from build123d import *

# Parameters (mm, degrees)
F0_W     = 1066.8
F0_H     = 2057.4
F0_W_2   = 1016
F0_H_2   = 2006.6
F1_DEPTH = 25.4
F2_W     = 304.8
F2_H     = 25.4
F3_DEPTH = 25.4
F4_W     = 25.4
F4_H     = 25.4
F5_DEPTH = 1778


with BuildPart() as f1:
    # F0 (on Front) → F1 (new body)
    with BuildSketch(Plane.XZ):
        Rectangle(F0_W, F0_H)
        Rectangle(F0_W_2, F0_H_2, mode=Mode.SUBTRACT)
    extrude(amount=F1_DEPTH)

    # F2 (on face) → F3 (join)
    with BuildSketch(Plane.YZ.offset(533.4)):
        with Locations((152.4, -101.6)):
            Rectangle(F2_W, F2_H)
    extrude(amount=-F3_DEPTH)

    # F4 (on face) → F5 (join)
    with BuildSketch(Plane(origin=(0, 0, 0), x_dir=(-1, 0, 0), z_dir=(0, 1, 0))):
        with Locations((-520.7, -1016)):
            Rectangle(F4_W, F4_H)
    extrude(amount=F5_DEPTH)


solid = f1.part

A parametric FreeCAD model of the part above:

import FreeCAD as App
import Part
import Sketcher
from FreeCAD import Vector
Q = App.Units.Quantity


def add_polygon(sketch, points):
    """Adds a closed chain of lines whose ends are joined by coincident constraints."""
    first, n = sketch.GeometryCount, len(points)
    for a, b in zip(points, points[1:] + points[:1]):
        sketch.addGeometry(Part.LineSegment(App.Vector(*a, 0), App.Vector(*b, 0)), False)
    for i in range(n):
        sketch.addConstraint(Sketcher.Constraint("Coincident", first + i, 2, first + (i + 1) % n, 1))

doc = App.newDocument("Part")
params = doc.addObject("Spreadsheet::Sheet", "Params")
for row, (alias, value) in enumerate([
    ("sketch1_width", "42 in"),
    ("sketch1_width2", "40 in"),
    ("sketch1_height", "81 in"),
    ("sketch1_height2", "79 in"),
    ("pad1_length", "1 in"),
    ("sketch2_width", "12 in"),
    ("sketch2_height", "1 in"),
    ("pad2_length", "1 in"),
    ("sketch3_width", "1 in"),
    ("pad3_length", "70 in"),
], start=1):
    params.set(f"A{row}", alias)
    params.set(f"B{row}", "=" + value)
    params.setAlias(f"B{row}", alias)

body = doc.addObject("PartDesign::Body", "Body")

# Sketch on XZ plane
sketch1 = body.newObject("Sketcher::SketchObject", "Sketch")
sketch1.AttachmentSupport = (doc.getObject("XZ_Plane"), [""])
sketch1.MapMode = "FlatFace"
add_polygon(sketch1, [(-533, 1029), (-533, -1029), (533, -1029), (533, 1029)])  # lines 0-3
add_polygon(sketch1, [(508, -1003), (-508, -1003), (-508, 1003), (508, 1003)])  # lines 4-7
sketch1.addConstraint(Sketcher.Constraint("Vertical", 0))
sketch1.addConstraint(Sketcher.Constraint("Horizontal", 1))
sketch1.addConstraint(Sketcher.Constraint("Vertical", 2))
sketch1.addConstraint(Sketcher.Constraint("Horizontal", 3))
sketch1.addConstraint(Sketcher.Constraint("Horizontal", 4))
sketch1.addConstraint(Sketcher.Constraint("Vertical", 5))
sketch1.addConstraint(Sketcher.Constraint("Horizontal", 6))
sketch1.addConstraint(Sketcher.Constraint("Vertical", 7))
sketch1.addConstraint(Sketcher.Constraint("Symmetric", 0, 2, 2, 2, -1, 1))
sketch1.addConstraint(Sketcher.Constraint("Symmetric", 4, 2, 6, 2, -1, 1))
sketch1.addConstraint(Sketcher.Constraint("DistanceX", 1, 1, 1, 2, Q("42 in")))
sketch1.addConstraint(Sketcher.Constraint("DistanceX", 4, 2, 4, 1, Q("40 in")))
sketch1.addConstraint(Sketcher.Constraint("DistanceY", 0, 2, 0, 1, Q("81 in")))
sketch1.addConstraint(Sketcher.Constraint("DistanceY", 5, 1, 5, 2, Q("79 in")))
sketch1.setExpression("Constraints[18]", "Params.sketch1_width")
sketch1.setExpression("Constraints[19]", "Params.sketch1_width2")
sketch1.setExpression("Constraints[20]", "Params.sketch1_height")
sketch1.setExpression("Constraints[21]", "Params.sketch1_height2")
pad1 = body.newObject("PartDesign::Pad", "Pad")
pad1.Profile = sketch1
pad1.setExpression("Length", "Params.pad1_length")

# Sketch on YZ plane
sketch2 = body.newObject("Sketcher::SketchObject", "Sketch001")
sketch2.AttachmentSupport = (doc.getObject("YZ_Plane"), [""])
sketch2.MapMode = "FlatFace"
sketch2.AttachmentOffset = App.Placement(Vector(0, 0, 21 * 25.4), App.Rotation())
add_polygon(sketch2, [(0, -89), (0, -114), (305, -114), (305, -89)])  # lines 0-3
sketch2.addConstraint(Sketcher.Constraint("Vertical", 0))
sketch2.addConstraint(Sketcher.Constraint("Horizontal", 1))
sketch2.addConstraint(Sketcher.Constraint("Vertical", 2))
sketch2.addConstraint(Sketcher.Constraint("Horizontal", 3))
sketch2.addConstraint(Sketcher.Constraint("PointOnObject", 0, 2, -2))
sketch2.addConstraint(Sketcher.Constraint("DistanceX", 1, 1, 1, 2, Q("12 in")))
sketch2.addConstraint(Sketcher.Constraint("DistanceY", 0, 2, 0, 1, Q("1 in")))
sketch2.addConstraint(Sketcher.Constraint("DistanceY", 0, 2, -1, 1, Q("4.5 in")))
sketch2.setExpression("Constraints[9]", "Params.sketch2_width")
sketch2.setExpression("Constraints[10]", "Params.sketch2_height")
pad2 = body.newObject("PartDesign::Pad", "Pad001")
pad2.Profile = sketch2
pad2.setExpression("Length", "Params.pad2_length")
pad2.Reversed = True

# Sketch on XZ plane
sketch3 = body.newObject("Sketcher::SketchObject", "Sketch002")
sketch3.AttachmentSupport = (doc.getObject("XZ_Plane"), [""])
sketch3.MapMode = "FlatFace"
add_polygon(sketch3, [(533, -1003), (533, -1029), (508, -1029), (508, -1003)])  # lines 0-3
sketch3.addConstraint(Sketcher.Constraint("Vertical", 0))
sketch3.addConstraint(Sketcher.Constraint("Horizontal", 1))
sketch3.addConstraint(Sketcher.Constraint("Vertical", 2))
sketch3.addConstraint(Sketcher.Constraint("Horizontal", 3))
sketch3.addConstraint(Sketcher.Constraint("Equal", 3, 0))
sketch3.addConstraint(Sketcher.Constraint("DistanceX", 1, 2, 1, 1, Q("1 in")))
sketch3.addConstraint(Sketcher.Constraint("DistanceX", -1, 1, 0, 2, Q("21 in")))
sketch3.addConstraint(Sketcher.Constraint("DistanceY", 0, 2, -1, 1, Q("40.5 in")))
sketch3.setExpression("Constraints[9]", "Params.sketch3_width")
pad3 = body.newObject("PartDesign::Pad", "Pad002")
pad3.Profile = sketch3
pad3.setExpression("Length", "Params.pad3_length")
pad3.Reversed = True

doc.recompute()
